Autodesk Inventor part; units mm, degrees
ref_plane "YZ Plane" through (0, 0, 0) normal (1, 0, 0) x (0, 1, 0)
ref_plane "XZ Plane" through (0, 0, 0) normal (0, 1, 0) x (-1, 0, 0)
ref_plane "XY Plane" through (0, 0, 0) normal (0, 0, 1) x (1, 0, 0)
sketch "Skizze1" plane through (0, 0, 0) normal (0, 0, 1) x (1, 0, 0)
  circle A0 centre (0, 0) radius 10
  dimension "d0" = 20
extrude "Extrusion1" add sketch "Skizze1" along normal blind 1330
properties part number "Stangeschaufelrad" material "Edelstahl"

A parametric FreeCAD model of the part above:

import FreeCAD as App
import Part
import Sketcher

doc = App.newDocument("Part")
body = doc.addObject("PartDesign::Body", "Body")

sketch1 = body.newObject("Sketcher::SketchObject", "Sketch")
sketch1.AttachmentSupport = (doc.getObject("XY_Plane"), [""])
sketch1.MapMode = "FlatFace"
sketch1.addGeometry(Part.Circle(App.Vector(0, 0, 0), App.Vector(0, 0, 1), 10), False)
sketch1.addConstraint([
    Sketcher.Constraint("Coincident", 0, 3, -1, 1),
    Sketcher.Constraint("Diameter", 0, 20.0),
])
pad1 = body.newObject("PartDesign::Pad", "Pad")
pad1.Profile = sketch1
pad1.Length = 1330

doc.recompute()
